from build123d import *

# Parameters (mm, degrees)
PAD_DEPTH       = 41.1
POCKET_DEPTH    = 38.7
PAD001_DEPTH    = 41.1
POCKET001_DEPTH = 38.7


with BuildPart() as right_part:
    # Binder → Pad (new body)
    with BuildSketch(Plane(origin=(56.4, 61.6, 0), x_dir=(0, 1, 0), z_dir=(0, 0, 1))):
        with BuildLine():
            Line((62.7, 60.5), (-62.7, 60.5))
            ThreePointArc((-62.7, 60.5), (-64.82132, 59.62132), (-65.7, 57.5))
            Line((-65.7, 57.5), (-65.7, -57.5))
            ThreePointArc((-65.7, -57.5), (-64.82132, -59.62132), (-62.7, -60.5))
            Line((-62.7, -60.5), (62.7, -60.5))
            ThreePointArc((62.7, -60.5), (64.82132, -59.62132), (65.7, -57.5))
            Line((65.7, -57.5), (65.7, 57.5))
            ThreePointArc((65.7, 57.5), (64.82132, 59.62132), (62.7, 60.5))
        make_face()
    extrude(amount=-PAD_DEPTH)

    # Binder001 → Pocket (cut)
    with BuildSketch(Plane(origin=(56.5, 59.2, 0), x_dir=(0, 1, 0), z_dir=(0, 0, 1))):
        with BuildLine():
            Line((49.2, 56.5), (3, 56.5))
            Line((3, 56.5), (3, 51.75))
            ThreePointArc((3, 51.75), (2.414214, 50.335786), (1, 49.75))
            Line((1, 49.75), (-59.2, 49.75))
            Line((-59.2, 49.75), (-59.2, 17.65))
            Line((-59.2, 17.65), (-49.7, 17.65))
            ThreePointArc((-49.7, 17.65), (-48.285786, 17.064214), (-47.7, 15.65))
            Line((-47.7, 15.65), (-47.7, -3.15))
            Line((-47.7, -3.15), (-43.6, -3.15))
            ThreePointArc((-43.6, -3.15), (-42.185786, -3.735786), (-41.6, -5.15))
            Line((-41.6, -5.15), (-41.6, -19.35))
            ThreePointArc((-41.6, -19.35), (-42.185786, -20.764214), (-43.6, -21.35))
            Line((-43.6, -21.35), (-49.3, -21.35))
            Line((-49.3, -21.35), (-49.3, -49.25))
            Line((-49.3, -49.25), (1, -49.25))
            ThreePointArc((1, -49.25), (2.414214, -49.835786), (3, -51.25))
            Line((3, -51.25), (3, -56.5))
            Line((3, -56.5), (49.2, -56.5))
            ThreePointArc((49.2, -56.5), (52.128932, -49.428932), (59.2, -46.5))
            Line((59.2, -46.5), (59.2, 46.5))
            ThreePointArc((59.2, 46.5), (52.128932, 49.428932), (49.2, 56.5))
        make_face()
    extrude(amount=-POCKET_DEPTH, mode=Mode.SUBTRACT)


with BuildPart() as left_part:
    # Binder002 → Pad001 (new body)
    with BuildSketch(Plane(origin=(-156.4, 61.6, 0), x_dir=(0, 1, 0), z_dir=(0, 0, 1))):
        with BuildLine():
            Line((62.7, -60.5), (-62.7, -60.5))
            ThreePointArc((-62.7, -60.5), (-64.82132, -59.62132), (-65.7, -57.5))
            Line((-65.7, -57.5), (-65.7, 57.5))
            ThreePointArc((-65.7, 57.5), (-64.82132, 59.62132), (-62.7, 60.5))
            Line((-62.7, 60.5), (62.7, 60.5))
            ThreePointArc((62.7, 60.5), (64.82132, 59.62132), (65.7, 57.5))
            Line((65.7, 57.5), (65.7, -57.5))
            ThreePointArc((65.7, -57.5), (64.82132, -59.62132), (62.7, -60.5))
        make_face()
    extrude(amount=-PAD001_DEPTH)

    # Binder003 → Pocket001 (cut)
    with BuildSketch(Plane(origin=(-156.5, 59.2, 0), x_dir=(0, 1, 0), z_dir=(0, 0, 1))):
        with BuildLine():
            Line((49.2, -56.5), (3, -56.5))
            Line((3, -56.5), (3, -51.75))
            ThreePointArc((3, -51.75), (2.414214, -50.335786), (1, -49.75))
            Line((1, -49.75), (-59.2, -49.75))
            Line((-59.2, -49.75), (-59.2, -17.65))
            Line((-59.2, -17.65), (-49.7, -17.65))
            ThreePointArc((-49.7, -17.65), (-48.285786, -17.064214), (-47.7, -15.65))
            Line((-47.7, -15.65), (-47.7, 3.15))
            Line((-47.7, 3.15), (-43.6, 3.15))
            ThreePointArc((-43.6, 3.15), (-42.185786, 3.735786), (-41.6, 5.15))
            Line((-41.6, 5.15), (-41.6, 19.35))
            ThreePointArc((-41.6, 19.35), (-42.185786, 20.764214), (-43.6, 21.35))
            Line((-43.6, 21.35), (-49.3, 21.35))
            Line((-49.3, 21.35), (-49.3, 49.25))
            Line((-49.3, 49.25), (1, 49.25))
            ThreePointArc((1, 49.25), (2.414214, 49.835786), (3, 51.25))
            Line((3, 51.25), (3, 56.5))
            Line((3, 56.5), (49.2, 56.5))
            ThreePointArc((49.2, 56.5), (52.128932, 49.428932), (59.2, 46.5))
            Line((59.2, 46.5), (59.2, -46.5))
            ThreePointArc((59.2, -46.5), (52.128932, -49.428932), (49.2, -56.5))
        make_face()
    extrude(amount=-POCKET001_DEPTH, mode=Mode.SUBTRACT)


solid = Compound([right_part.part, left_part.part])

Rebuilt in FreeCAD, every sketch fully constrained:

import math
import FreeCAD as App
import Part
import Sketcher

V = App.Vector

doc = App.newDocument("Part")
body = doc.addObject("PartDesign::Body", "Body")

# Sketch on XY plane
sketch1 = body.newObject("Sketcher::SketchObject", "Sketch")
sketch1.AttachmentSupport = (doc.getObject("XY_Plane"), [""])
sketch1.MapMode = "FlatFace"
sketch1.addGeometry([
    Part.LineSegment(V(-4.1, 124.3, 0), V(-4.1, -1.1, 0)),  # 0
    Part.ArcOfCircle(Part.Circle(V(-1.1, -1.1, 0), V(0, 0, 1), 3), math.radians(-180), math.radians(-90)),  # 1
    Part.LineSegment(V(-1.1, -4.1, 0), V(113.9, -4.1, 0)),  # 2
    Part.ArcOfCircle(Part.Circle(V(113.9, -1.1, 0), V(0, 0, 1), 3), math.radians(-90), math.radians(0)),  # 3
    Part.LineSegment(V(116.9, -1.1, 0), V(116.9, 124.3, 0)),  # 4
    Part.ArcOfCircle(Part.Circle(V(113.9, 124.3, 0), V(0, 0, 1), 3), math.radians(0), math.radians(90)),  # 5
    Part.LineSegment(V(113.9, 127.3, 0), V(-1.1, 127.3, 0)),  # 6
    Part.ArcOfCircle(Part.Circle(V(-1.1, 124.3, 0), V(0, 0, 1), 3), math.radians(90), math.radians(180)),  # 7
], False)
sketch1.addConstraint([
    Sketcher.Constraint("Tangent", 0, 2, 1, 1),
    Sketcher.Constraint("Tangent", 1, 2, 2, 1),
    Sketcher.Constraint("Tangent", 2, 2, 3, 1),
    Sketcher.Constraint("Tangent", 3, 2, 4, 1),
    Sketcher.Constraint("Tangent", 4, 2, 5, 1),
    Sketcher.Constraint("Tangent", 5, 2, 6, 1),
    Sketcher.Constraint("Tangent", 6, 2, 7, 1),
    Sketcher.Constraint("Tangent", 7, 2, 0, 1),
    Sketcher.Constraint("Vertical", 0),
    Sketcher.Constraint("Horizontal", 2),
    Sketcher.Constraint("Vertical", 4),
    Sketcher.Constraint("Horizontal", 6),
    Sketcher.Constraint("Equal", 1, 3),
    Sketcher.Constraint("Equal", 3, 5),
    Sketcher.Constraint("Equal", 5, 7),
    Sketcher.Constraint("Radius", 1, 3.000001),
    Sketcher.Constraint("DistanceX", 2, 1, 2, 2, 115.0),
    Sketcher.Constraint("DistanceY", 0, 2, 0, 1, 125.4),
    Sketcher.Constraint("DistanceX", 1, 3, -1, 1, 1.099999),
    Sketcher.Constraint("DistanceY", 1, 3, -1, 1, 1.099999),
])
pad1 = body.newObject("PartDesign::Pad", "Pad")
pad1.Profile = sketch1
pad1.Length = 41.1
pad1.Reversed = True

# Sketch on XY plane
sketch2 = body.newObject("Sketcher::SketchObject", "Sketch001")
sketch2.AttachmentSupport = (doc.getObject("XY_Plane"), [""])
sketch2.MapMode = "FlatFace"
sketch2.addGeometry([
    Part.LineSegment(V(0, 108.4, 0), V(0, 62.2, 0)),  # 0
    Part.LineSegment(V(0, 62.2, 0), V(4.8, 62.2, 0)),  # 1
    Part.ArcOfCircle(Part.Circle(V(4.8, 60.2, 0), V(0, 0, 1), 2), math.radians(0), math.radians(90)),  # 2
    Part.LineSegment(V(6.8, 60.2, 0), V(6.8, 0, 0)),  # 3
    Part.LineSegment(V(6.8, 0, 0), V(38.9, 0, 0)),  # 4
    Part.LineSegment(V(38.9, 0, 0), V(38.9, 9.5, 0)),  # 5
    Part.ArcOfCircle(Part.Circle(V(40.8, 9.5, 0), V(0, 0, 1), 2), math.radians(90), math.radians(180)),  # 6
    Part.LineSegment(V(40.9, 11.5, 0), V(59.6, 11.5, 0)),  # 7
    Part.LineSegment(V(59.6, 11.5, 0), V(59.6, 15.6, 0)),  # 8
    Part.ArcOfCircle(Part.Circle(V(61.6, 15.6, 0), V(0, 0, 1), 2), math.radians(90), math.radians(180)),  # 9
    Part.LineSegment(V(61.6, 17.6, 0), V(75.8, 17.6, 0)),  # 10
    Part.ArcOfCircle(Part.Circle(V(75.9, 15.6, 0), V(0, 0, 1), 2), math.radians(0), math.radians(90)),  # 11
    Part.LineSegment(V(77.8, 15.6, 0), V(77.8, 9.9, 0)),  # 12
    Part.LineSegment(V(77.8, 9.9, 0), V(105.8, 9.9, 0)),  # 13
    Part.LineSegment(V(105.8, 9.9, 0), V(105.8, 60.2, 0)),  # 14
    Part.ArcOfCircle(Part.Circle(V(107.7, 60.2, 0), V(0, 0, 1), 2), math.radians(90), math.radians(180)),  # 15
    Part.LineSegment(V(107.8, 62.2, 0), V(113, 62.2, 0)),  # 16
    Part.LineSegment(V(113, 62.2, 0), V(113, 108.4, 0)),  # 17
    Part.ArcOfCircle(Part.Circle(V(113, 118.4, 0), V(0, 0, 1), 10), math.radians(180), math.radians(270)),  # 18
    Part.LineSegment(V(103, 118.4, 0), V(10, 118.4, 0)),  # 19
    Part.ArcOfCircle(Part.Circle(V(0, 118.4, 0), V(0, 0, 1), 10), math.radians(-90), math.radians(0)),  # 20
], False)
sketch2.addConstraint([
    Sketcher.Constraint("Coincident", 0, 2, 1, 1),
    Sketcher.Constraint("Tangent", 1, 2, 2, 2),
    Sketcher.Constraint("Tangent", 2, 1, 3, 1),
    Sketcher.Constraint("Coincident", 3, 2, 4, 1),
    Sketcher.Constraint("Coincident", 4, 2, 5, 1),
    Sketcher.Constraint("Tangent", 5, 2, 6, 2),
    Sketcher.Constraint("Tangent", 6, 1, 7, 1),
    Sketcher.Constraint("Coincident", 7, 2, 8, 1),
    Sketcher.Constraint("Tangent", 8, 2, 9, 2),
    Sketcher.Constraint("Tangent", 9, 1, 10, 1),
    Sketcher.Constraint("Tangent", 10, 2, 11, 2),
    Sketcher.Constraint("Tangent", 11, 1, 12, 1),
    Sketcher.Constraint("Coincident", 12, 2, 13, 1),
    Sketcher.Constraint("Coincident", 13, 2, 14, 1),
    Sketcher.Constraint("Tangent", 14, 2, 15, 2),
    Sketcher.Constraint("Tangent", 15, 1, 16, 1),
    Sketcher.Constraint("Coincident", 16, 2, 17, 1),
    Sketcher.Constraint("Coincident", 17, 2, 18, 2),
    Sketcher.Constraint("Coincident", 18, 1, 19, 1),
    Sketcher.Constraint("Coincident", 19, 2, 20, 2),
    Sketcher.Constraint("Coincident", 20, 1, 0, 1),
    Sketcher.Constraint("Vertical", 0),
    Sketcher.Constraint("Horizontal", 1),
    Sketcher.Constraint("Vertical", 3),
    Sketcher.Constraint("Horizontal", 4),
    Sketcher.Constraint("Vertical", 5),
    Sketcher.Constraint("Horizontal", 7),
    Sketcher.Constraint("Vertical", 8),
    Sketcher.Constraint("Horizontal", 10),
    Sketcher.Constraint("Vertical", 12),
    Sketcher.Constraint("Horizontal", 13),
    Sketcher.Constraint("Vertical", 14),
    Sketcher.Constraint("Horizontal", 16),
    Sketcher.Constraint("Vertical", 17),
    Sketcher.Constraint("Horizontal", 19),
    Sketcher.Constraint("Equal", 2, 6),
    Sketcher.Constraint("Equal", 6, 9),
    Sketcher.Constraint("Equal", 9, 11),
    Sketcher.Constraint("Equal", 11, 15),
    Sketcher.Constraint("Equal", 18, 20),
    Sketcher.Constraint("PointOnObject", 20, 3, -2),
    Sketcher.Constraint("PointOnObject", 0, 2, -2),
    Sketcher.Constraint("PointOnObject", 3, 2, -1),
    Sketcher.Constraint("Horizontal", 2, 3, 15, 3),
    Sketcher.Constraint("Horizontal", 18, 3, 20, 3),
    Sketcher.Constraint("Horizontal", 20, 3, 18, 1),
    Sketcher.Constraint("Vertical", 18, 3, 16, 2),
    Sketcher.Constraint("Radius", 2, 1.999999),
    Sketcher.Constraint("Radius", 18, 9.999999),
    Sketcher.Constraint("DistanceX", 19, 2, 19, 1, 93.0),
    Sketcher.Constraint("DistanceX", 4, 1, 4, 2, 32.1),
    Sketcher.Constraint("DistanceX", 7, 1, 7, 2, 18.8),
    Sketcher.Constraint("DistanceX", 10, 1, 10, 2, 14.2),
    Sketcher.Constraint("DistanceX", 13, 1, 13, 2, 27.9),
    Sketcher.Constraint("DistanceY", 0, 2, 0, 1, 46.2),
    Sketcher.Constraint("DistanceY", 3, 2, 3, 1, 60.2),
    Sketcher.Constraint("DistanceY", 5, 1, 5, 2, 9.5),
    Sketcher.Constraint("DistanceY", 8, 1, 8, 2, 4.1),
    Sketcher.Constraint("DistanceY", 12, 2, 12, 1, 5.7),
    Sketcher.Constraint("DistanceX", 1, 1, 1, 2, 4.75),
])
pocket1 = body.newObject("PartDesign::Pocket", "Pocket")
pocket1.Profile = sketch2
pocket1.Length = 38.7
body2 = doc.addObject("PartDesign::Body", "Body001")

# Sketch on XY plane
sketch3 = body2.newObject("Sketcher::SketchObject", "Sketch002")
sketch3.AttachmentSupport = (doc.getObject("XY_Plane001"), [""])
sketch3.MapMode = "FlatFace"
sketch3.addGeometry([
    Part.LineSegment(V(-95.9, -1.1, 0), V(-95.9, 124.3, 0)),  # 0
    Part.ArcOfCircle(Part.Circle(V(-98.9, 124.3, 0), V(0, 0, 1), 3), math.radians(0), math.radians(90)),  # 1
    Part.LineSegment(V(-98.9, 127.3, 0), V(-213.9, 127.3, 0)),  # 2
    Part.ArcOfCircle(Part.Circle(V(-213.9, 124.3, 0), V(0, 0, 1), 3), math.radians(90), math.radians(180)),  # 3
    Part.LineSegment(V(-216.9, 124.3, 0), V(-216.9, -1.1, 0)),  # 4
    Part.ArcOfCircle(Part.Circle(V(-213.9, -1.1, 0), V(0, 0, 1), 3), math.radians(-180), math.radians(-90)),  # 5
    Part.LineSegment(V(-213.9, -4.1, 0), V(-98.9, -4.1, 0)),  # 6
    Part.ArcOfCircle(Part.Circle(V(-98.9, -1.1, 0), V(0, 0, 1), 3), math.radians(-90), math.radians(0)),  # 7
], False)
sketch3.addConstraint([
    Sketcher.Constraint("Tangent", 0, 2, 1, 1),
    Sketcher.Constraint("Tangent", 1, 2, 2, 1),
    Sketcher.Constraint("Tangent", 2, 2, 3, 1),
    Sketcher.Constraint("Tangent", 3, 2, 4, 1),
    Sketcher.Constraint("Tangent", 4, 2, 5, 1),
    Sketcher.Constraint("Tangent", 5, 2, 6, 1),
    Sketcher.Constraint("Tangent", 6, 2, 7, 1),
    Sketcher.Constraint("Tangent", 7, 2, 0, 1),
    Sketcher.Constraint("Vertical", 0),
    Sketcher.Constraint("Horizontal", 2),
    Sketcher.Constraint("Vertical", 4),
    Sketcher.Constraint("Horizontal", 6),
    Sketcher.Constraint("Equal", 1, 3),
    Sketcher.Constraint("Equal", 3, 5),
    Sketcher.Constraint("Equal", 5, 7),
    Sketcher.Constraint("Radius", 1, 3.000001),
    Sketcher.Constraint("DistanceX", 2, 2, 2, 1, 115.0),
    Sketcher.Constraint("DistanceY", 0, 1, 0, 2, 125.4),
    Sketcher.Constraint("DistanceX", 1, 3, -1, 1, 98.900001),
    Sketcher.Constraint("DistanceY", -1, 1, 1, 3, 124.299999),
])
pad2 = body2.newObject("PartDesign::Pad", "Pad001")
pad2.Profile = sketch3
pad2.Length = 41.1
pad2.Reversed = True

# Sketch on XY plane
sketch4 = body2.newObject("Sketcher::SketchObject", "Sketch003")
sketch4.AttachmentSupport = (doc.getObject("XY_Plane001"), [""])
sketch4.MapMode = "FlatFace"
sketch4.addGeometry([
    Part.LineSegment(V(-100, 62.2, 0), V(-100, 108.4, 0)),  # 0
    Part.ArcOfCircle(Part.Circle(V(-100, 118.4, 0), V(0, 0, 1), 10), math.radians(180), math.radians(270)),  # 1
    Part.LineSegment(V(-110, 118.4, 0), V(-203, 118.4, 0)),  # 2
    Part.ArcOfCircle(Part.Circle(V(-213, 118.4, 0), V(0, 0, 1), 10), math.radians(-90), math.radians(0)),  # 3
    Part.LineSegment(V(-213, 108.4, 0), V(-213, 62.2, 0)),  # 4
    Part.LineSegment(V(-213, 62.2, 0), V(-207.8, 62.2, 0)),  # 5
    Part.ArcOfCircle(Part.Circle(V(-207.7, 60.2, 0), V(0, 0, 1), 2), math.radians(0), math.radians(90)),  # 6
    Part.LineSegment(V(-205.8, 60.2, 0), V(-205.8, 9.9, 0)),  # 7
    Part.LineSegment(V(-205.8, 9.9, 0), V(-177.8, 9.9, 0)),  # 8
    Part.LineSegment(V(-177.8, 9.9, 0), V(-177.8, 15.6, 0)),  # 9
    Part.ArcOfCircle(Part.Circle(V(-175.9, 15.6, 0), V(0, 0, 1), 2), math.radians(90), math.radians(180)),  # 10
    Part.LineSegment(V(-175.8, 17.6, 0), V(-161.7, 17.6, 0)),  # 11
    Part.ArcOfCircle(Part.Circle(V(-161.6, 15.6, 0), V(0, 0, 1), 2), math.radians(0), math.radians(90)),  # 12
    Part.LineSegment(V(-159.7, 15.6, 0), V(-159.7, 11.5, 0)),  # 13
    Part.LineSegment(V(-159.7, 11.5, 0), V(-140.8, 11.5, 0)),  # 14
    Part.ArcOfCircle(Part.Circle(V(-140.8, 9.5, 0), V(0, 0, 1), 2), math.radians(0), math.radians(90)),  # 15
    Part.LineSegment(V(-138.8, 9.5, 0), V(-138.8, 0, 0)),  # 16
    Part.LineSegment(V(-138.8, 0, 0), V(-106.8, 0, 0)),  # 17
    Part.LineSegment(V(-106.8, 0, 0), V(-106.8, 60.2, 0)),  # 18
    Part.ArcOfCircle(Part.Circle(V(-104.8, 60.2, 0), V(0, 0, 1), 2), math.radians(90), math.radians(180)),  # 19
    Part.LineSegment(V(-104.8, 62.2, 0), V(-100, 62.2, 0)),  # 20
], False)
sketch4.addConstraint([
    Sketcher.Constraint("Coincident", 0, 2, 1, 2),
    Sketcher.Constraint("Coincident", 1, 1, 2, 1),
    Sketcher.Constraint("Coincident", 2, 2, 3, 2),
    Sketcher.Constraint("Coincident", 3, 1, 4, 1),
    Sketcher.Constraint("Coincident", 4, 2, 5, 1),
    Sketcher.Constraint("Tangent", 5, 2, 6, 2),
    Sketcher.Constraint("Tangent", 6, 1, 7, 1),
    Sketcher.Constraint("Coincident", 7, 2, 8, 1),
    Sketcher.Constraint("Coincident", 8, 2, 9, 1),
    Sketcher.Constraint("Tangent", 9, 2, 10, 2),
    Sketcher.Constraint("Tangent", 10, 1, 11, 1),
    Sketcher.Constraint("Tangent", 11, 2, 12, 2),
    Sketcher.Constraint("Tangent", 12, 1, 13, 1),
    Sketcher.Constraint("Coincident", 13, 2, 14, 1),
    Sketcher.Constraint("Tangent", 14, 2, 15, 2),
    Sketcher.Constraint("Tangent", 15, 1, 16, 1),
    Sketcher.Constraint("Coincident", 16, 2, 17, 1),
    Sketcher.Constraint("Coincident", 17, 2, 18, 1),
    Sketcher.Constraint("Tangent", 18, 2, 19, 2),
    Sketcher.Constraint("Tangent", 19, 1, 20, 1),
    Sketcher.Constraint("Coincident", 20, 2, 0, 1),
    Sketcher.Constraint("Vertical", 0),
    Sketcher.Constraint("Horizontal", 2),
    Sketcher.Constraint("Vertical", 4),
    Sketcher.Constraint("Horizontal", 5),
    Sketcher.Constraint("Vertical", 7),
    Sketcher.Constraint("Horizontal", 8),
    Sketcher.Constraint("Vertical", 9),
    Sketcher.Constraint("Horizontal", 11),
    Sketcher.Constraint("Vertical", 13),
    Sketcher.Constraint("Horizontal", 14),
    Sketcher.Constraint("Vertical", 16),
    Sketcher.Constraint("Horizontal", 17),
    Sketcher.Constraint("Vertical", 18),
    Sketcher.Constraint("Horizontal", 20),
    Sketcher.Constraint("Equal", 1, 3),
    Sketcher.Constraint("Equal", 6, 10),
    Sketcher.Constraint("Equal", 10, 12),
    Sketcher.Constraint("Equal", 12, 15),
    Sketcher.Constraint("Equal", 15, 19),
    Sketcher.Constraint("PointOnObject", 16, 2, -1),
    Sketcher.Constraint("Horizontal", 1, 3, 3, 3),
    Sketcher.Constraint("Horizontal", 6, 3, 19, 3),
    Sketcher.Constraint("Horizontal", 3, 3, 1, 1),
    Sketcher.Constraint("Vertical", 1, 3, 0, 2),
    Sketcher.Constraint("Radius", 1, 9.999999),
    Sketcher.Constraint("Radius", 6, 1.999999),
    Sketcher.Constraint("DistanceX", 2, 2, 2, 1, 93.0),
    Sketcher.Constraint("DistanceX", 8, 1, 8, 2, 27.9),
    Sketcher.Constraint("DistanceX", 11, 1, 11, 2, 14.2),
    Sketcher.Constraint("DistanceX", 14, 1, 14, 2, 18.8),
    Sketcher.Constraint("DistanceX", 17, 1, 17, 2, 32.1),
    Sketcher.Constraint("DistanceY", 0, 1, 0, 2, 46.2),
    Sketcher.Constraint("DistanceY", 7, 2, 7, 1, 50.3),
    Sketcher.Constraint("DistanceY", 9, 1, 9, 2, 5.7),
    Sketcher.Constraint("DistanceY", 13, 2, 13, 1, 4.1),
    Sketcher.Constraint("DistanceY", 16, 2, 16, 1, 9.5),
    Sketcher.Constraint("DistanceX", 1, 3, -1, 1, 100.000001),
    Sketcher.Constraint("DistanceX", 3, 1, -1, 1, 213.0),
    Sketcher.Constraint("DistanceX", 5, 1, 5, 2, 5.25),
])
pocket2 = body2.newObject("PartDesign::Pocket", "Pocket001")
pocket2.Profile = sketch4
pocket2.Length = 38.7

doc.recompute()
